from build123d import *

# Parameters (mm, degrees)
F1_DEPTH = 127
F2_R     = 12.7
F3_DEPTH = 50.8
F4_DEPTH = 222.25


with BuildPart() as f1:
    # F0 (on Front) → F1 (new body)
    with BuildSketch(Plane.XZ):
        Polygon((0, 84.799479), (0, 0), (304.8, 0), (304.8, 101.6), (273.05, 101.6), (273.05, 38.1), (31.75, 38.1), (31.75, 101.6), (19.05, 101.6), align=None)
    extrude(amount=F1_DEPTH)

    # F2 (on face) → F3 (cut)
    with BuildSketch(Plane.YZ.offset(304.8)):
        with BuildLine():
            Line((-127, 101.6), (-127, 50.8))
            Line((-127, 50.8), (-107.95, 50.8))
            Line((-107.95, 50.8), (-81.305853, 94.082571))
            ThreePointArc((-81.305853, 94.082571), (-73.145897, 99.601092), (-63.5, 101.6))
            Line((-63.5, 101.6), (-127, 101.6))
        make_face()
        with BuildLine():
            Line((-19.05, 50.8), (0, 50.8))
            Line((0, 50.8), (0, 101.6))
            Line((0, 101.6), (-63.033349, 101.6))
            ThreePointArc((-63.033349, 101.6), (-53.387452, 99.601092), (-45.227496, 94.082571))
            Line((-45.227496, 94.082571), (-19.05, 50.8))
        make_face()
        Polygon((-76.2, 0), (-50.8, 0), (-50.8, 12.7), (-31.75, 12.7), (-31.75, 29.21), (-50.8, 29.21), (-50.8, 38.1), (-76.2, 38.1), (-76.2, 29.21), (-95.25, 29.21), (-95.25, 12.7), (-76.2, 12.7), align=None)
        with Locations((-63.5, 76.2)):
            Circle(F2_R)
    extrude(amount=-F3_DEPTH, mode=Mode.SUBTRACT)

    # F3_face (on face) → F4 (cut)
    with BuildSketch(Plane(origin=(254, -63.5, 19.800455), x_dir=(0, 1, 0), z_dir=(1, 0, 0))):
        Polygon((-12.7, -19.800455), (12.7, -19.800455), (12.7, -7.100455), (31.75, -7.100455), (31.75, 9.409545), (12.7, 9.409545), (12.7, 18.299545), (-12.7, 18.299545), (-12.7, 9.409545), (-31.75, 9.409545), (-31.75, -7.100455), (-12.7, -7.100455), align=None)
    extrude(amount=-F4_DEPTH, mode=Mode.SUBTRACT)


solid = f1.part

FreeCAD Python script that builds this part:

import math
import FreeCAD as App
import Part
import Sketcher

V = App.Vector
Q = App.Units.Quantity

doc = App.newDocument("Part")
body = doc.addObject("PartDesign::Body", "Body")

sketch1 = body.newObject("Sketcher::SketchObject", "Sketch")
sketch1.AttachmentSupport = (doc.getObject("XZ_Plane"), [""])
sketch1.MapMode = "FlatFace"
sketch1.addGeometry([
    Part.LineSegment(V(0, 85, 0), V(0, 0, 0)),
    Part.LineSegment(V(0, 0, 0), V(305, 0, 0)),
    Part.LineSegment(V(305, 0, 0), V(305, 102, 0)),
    Part.LineSegment(V(305, 102, 0), V(273, 102, 0)),
    Part.LineSegment(V(273, 102, 0), V(273, 38, 0)),
    Part.LineSegment(V(273, 38, 0), V(32, 38, 0)),
    Part.LineSegment(V(32, 38, 0), V(32, 102, 0)),
    Part.LineSegment(V(32, 102, 0), V(19, 102, 0)),
    Part.LineSegment(V(19, 102, 0), V(0, 85, 0)),
], False)
sketch1.addConstraint([
    Sketcher.Constraint("Coincident", 0, 2, 1, 1),
    Sketcher.Constraint("Coincident", 1, 2, 2, 1),
    Sketcher.Constraint("Coincident", 2, 2, 3, 1),
    Sketcher.Constraint("Coincident", 3, 2, 4, 1),
    Sketcher.Constraint("Coincident", 4, 2, 5, 1),
    Sketcher.Constraint("Coincident", 5, 2, 6, 1),
    Sketcher.Constraint("Coincident", 6, 2, 7, 1),
    Sketcher.Constraint("Coincident", 7, 2, 8, 1),
    Sketcher.Constraint("Coincident", 8, 2, 0, 1),
    Sketcher.Constraint("Vertical", 0),
    Sketcher.Constraint("Horizontal", 1),
    Sketcher.Constraint("Vertical", 2),
    Sketcher.Constraint("Horizontal", 3),
    Sketcher.Constraint("Vertical", 4),
    Sketcher.Constraint("Horizontal", 5),
    Sketcher.Constraint("Vertical", 6),
    Sketcher.Constraint("Horizontal", 7),
    Sketcher.Constraint("Coincident", 0, 2, -1, 1),
    Sketcher.Constraint("Horizontal", 3, 2, 6, 2),
    Sketcher.Constraint("DistanceX", 1, 1, 1, 2, Q("12 in")),
    Sketcher.Constraint("DistanceY", 2, 1, 2, 2, Q("4 in")),
    Sketcher.Constraint("Distance", 8, Q("1 in")),
    Sketcher.Constraint("DistanceX", 5, 2, 5, 1, Q("9.5 in")),
    Sketcher.Constraint("DistanceX", 7, 2, 7, 1, Q("0.5 in")),
    Sketcher.Constraint("DistanceY", 4, 2, 4, 1, Q("2.5 in")),
    Sketcher.Constraint("DistanceX", 3, 2, 3, 1, Q("1.25 in")),
])
pad1 = body.newObject("PartDesign::Pad", "Pad")
pad1.Profile = sketch1
pad1.Length = Q("5 in")

sketch2 = body.newObject("Sketcher::SketchObject", "Sketch001")
sketch2.AttachmentSupport = (doc.getObject("YZ_Plane"), [""])
sketch2.MapMode = "FlatFace"
sketch2.AttachmentOffset = App.Placement(V(0, 0, 12 * 25.4), App.Rotation())
sketch2.addGeometry([
    Part.LineSegment(V(-127, 102, 0), V(-127, 51, 0)),
    Part.LineSegment(V(-127, 51, 0), V(-108, 51, 0)),
    Part.LineSegment(V(-108, 51, 0), V(-81, 94, 0)),
    Part.ArcOfCircle(Part.Circle(V(-63, 76, 0), V(0, 0, 1), 25), math.radians(91), math.radians(135)),
    Part.LineSegment(V(-64, 102, 0), V(-127, 102, 0)),
    Part.LineSegment(V(-19, 51, 0), V(0, 51, 0)),
    Part.LineSegment(V(0, 51, 0), V(0, 102, 0)),
    Part.LineSegment(V(0, 102, 0), V(-63, 102, 0)),
    Part.ArcOfCircle(Part.Circle(V(-63, 76, 0), V(0, 0, 1), 25), math.radians(45), math.radians(89)),
    Part.LineSegment(V(-45, 94, 0), V(-19, 51, 0)),
    Part.LineSegment(V(-76, 0, 0), V(-51, 0, 0)),
    Part.LineSegment(V(-51, 0, 0), V(-51, 13, 0)),
    Part.LineSegment(V(-51, 13, 0), V(-32, 13, 0)),
    Part.LineSegment(V(-32, 13, 0), V(-32, 29, 0)),
    Part.LineSegment(V(-32, 29, 0), V(-51, 29, 0)),
    Part.LineSegment(V(-51, 29, 0), V(-51, 38, 0)),
    Part.LineSegment(V(-51, 38, 0), V(-76, 38, 0)),
    Part.LineSegment(V(-76, 38, 0), V(-76, 29, 0)),
    Part.LineSegment(V(-76, 29, 0), V(-95, 29, 0)),
    Part.LineSegment(V(-95, 29, 0), V(-95, 13, 0)),
    Part.LineSegment(V(-95, 13, 0), V(-76, 13, 0)),
    Part.LineSegment(V(-76, 13, 0), V(-76, 0, 0)),
    Part.Circle(V(-64, 76, 0), V(0, 0, 1), 13),
], False)
sketch2.addConstraint([
    Sketcher.Constraint("Coincident", 0, 2, 1, 1),
    Sketcher.Constraint("Coincident", 1, 2, 2, 1),
    Sketcher.Constraint("Coincident", 2, 2, 3, 2),
    Sketcher.Constraint("Coincident", 3, 1, 4, 1),
    Sketcher.Constraint("Coincident", 4, 2, 0, 1),
    Sketcher.Constraint("Coincident", 5, 2, 6, 1),
    Sketcher.Constraint("Coincident", 6, 2, 7, 1),
    Sketcher.Constraint("Coincident", 7, 2, 8, 2),
    Sketcher.Constraint("Coincident", 8, 1, 9, 1),
    Sketcher.Constraint("Coincident", 9, 2, 5, 1),
    Sketcher.Constraint("Coincident", 10, 2, 11, 1),
    Sketcher.Constraint("Coincident", 11, 2, 12, 1),
    Sketcher.Constraint("Coincident", 12, 2, 13, 1),
    Sketcher.Constraint("Coincident", 13, 2, 14, 1),
    Sketcher.Constraint("Coincident", 14, 2, 15, 1),
    Sketcher.Constraint("Coincident", 15, 2, 16, 1),
    Sketcher.Constraint("Coincident", 16, 2, 17, 1),
    Sketcher.Constraint("Coincident", 17, 2, 18, 1),
    Sketcher.Constraint("Coincident", 18, 2, 19, 1),
    Sketcher.Constraint("Coincident", 19, 2, 20, 1),
    Sketcher.Constraint("Coincident", 20, 2, 21, 1),
    Sketcher.Constraint("Coincident", 21, 2, 10, 1),
    Sketcher.Constraint("Vertical", 0),
    Sketcher.Constraint("Horizontal", 1),
    Sketcher.Constraint("Horizontal", 4),
    Sketcher.Constraint("Horizontal", 5),
    Sketcher.Constraint("Vertical", 6),
    Sketcher.Constraint("Horizontal", 7),
    Sketcher.Constraint("Horizontal", 10),
    Sketcher.Constraint("Vertical", 11),
    Sketcher.Constraint("Horizontal", 12),
    Sketcher.Constraint("Vertical", 13),
    Sketcher.Constraint("Horizontal", 14),
    Sketcher.Constraint("Vertical", 15),
    Sketcher.Constraint("Horizontal", 16),
    Sketcher.Constraint("Vertical", 17),
    Sketcher.Constraint("Horizontal", 18),
    Sketcher.Constraint("Vertical", 19),
    Sketcher.Constraint("Horizontal", 20),
    Sketcher.Constraint("Vertical", 21),
    Sketcher.Constraint("Coincident", 8, 3, 3, 3),
    Sketcher.Constraint("Equal", 3, 8),
    Sketcher.Constraint("PointOnObject", 5, 2, -2),
    Sketcher.Constraint("PointOnObject", 10, 2, -1),
    Sketcher.Constraint("Horizontal", 1, 2, 5, 2),
    Sketcher.Constraint("Horizontal", 4, 2, 6, 2),
    Sketcher.Constraint("Horizontal", 2, 2, 8, 1),
    Sketcher.Constraint("Horizontal", 14, 2, 17, 2),
    Sketcher.Constraint("Horizontal", 12, 2, 19, 2),
    Sketcher.Constraint("Vertical", 22, 3, 3, 1),
    Sketcher.Constraint("Vertical", 11, 2, 14, 2),
    Sketcher.Constraint("Vertical", 17, 2, 20, 2),
    Sketcher.Constraint("Equal", 1, 5),
    Sketcher.Constraint("Equal", 5, 12),
    Sketcher.Constraint("Equal", 14, 18),
    Sketcher.Constraint("Diameter", 22, Q("1 in")),
    Sketcher.Constraint("Radius", 3, Q("1 in")),
    Sketcher.Constraint("DistanceX", 10, 1, 10, 2, Q("1 in")),
    Sketcher.Constraint("DistanceY", 0, 2, 0, 1, Q("2 in")),
    Sketcher.Constraint("DistanceX", 4, 2, 4, 1, Q("2.5 in")),
    Sketcher.Constraint("DistanceY", 11, 1, 11, 2, Q("0.5 in")),
    Sketcher.Constraint("DistanceY", -1, 1, 22, 3, Q("3 in")),
    Sketcher.Constraint("DistanceX", 0, 2, -1, 1, Q("5 in")),
    Sketcher.Constraint("DistanceY", -1, 1, 0, 2, Q("2 in")),
    Sketcher.Constraint("DistanceX", 10, 2, -1, 1, Q("2 in")),
    Sketcher.Constraint("DistanceY", 11, 2, 15, 2, Q("1 in")),
    Sketcher.Constraint("DistanceX", 1, 1, 1, 2, Q("0.75 in")),
    Sketcher.Constraint("DistanceY", 13, 1, 13, 2, Q("0.65 in")),
    Sketcher.Constraint("DistanceX", 7, 2, 7, 1, Q("63.033349 mm")),
    Sketcher.Constraint("DistanceY", 8, 3, 2, 2, Q("17.881499 mm")),
])
pocket1 = body.newObject("PartDesign::Pocket", "Pocket")
pocket1.Profile = sketch2
pocket1.Length = Q("2 in")

sketch3 = body.newObject("Sketcher::SketchObject", "Sketch002")
sketch3.AttachmentSupport = (doc.getObject("YZ_Plane"), [""])
sketch3.MapMode = "FlatFace"
sketch3.AttachmentOffset = App.Placement(V(0, 0, 10 * 25.4), App.Rotation())
sketch3.addGeometry([
    Part.LineSegment(V(-76, 0, 0), V(-51, 0, 0)),
    Part.LineSegment(V(-51, 0, 0), V(-51, 13, 0)),
    Part.LineSegment(V(-51, 13, 0), V(-32, 13, 0)),
    Part.LineSegment(V(-32, 13, 0), V(-32, 29, 0)),
    Part.LineSegment(V(-32, 29, 0), V(-51, 29, 0)),
    Part.LineSegment(V(-51, 29, 0), V(-51, 38, 0)),
    Part.LineSegment(V(-51, 38, 0), V(-76, 38, 0)),
    Part.LineSegment(V(-76, 38, 0), V(-76, 29, 0)),
    Part.LineSegment(V(-76, 29, 0), V(-95, 29, 0)),
    Part.LineSegment(V(-95, 29, 0), V(-95, 13, 0)),
    Part.LineSegment(V(-95, 13, 0), V(-76, 13, 0)),
    Part.LineSegment(V(-76, 13, 0), V(-76, 0, 0)),
], False)
sketch3.addConstraint([
    Sketcher.Constraint("Coincident", 0, 2, 1, 1),
    Sketcher.Constraint("Coincident", 1, 2, 2, 1),
    Sketcher.Constraint("Coincident", 2, 2, 3, 1),
    Sketcher.Constraint("Coincident", 3, 2, 4, 1),
    Sketcher.Constraint("Coincident", 4, 2, 5, 1),
    Sketcher.Constraint("Coincident", 5, 2, 6, 1),
    Sketcher.Constraint("Coincident", 6, 2, 7, 1),
    Sketcher.Constraint("Coincident", 7, 2, 8, 1),
    Sketcher.Constraint("Coincident", 8, 2, 9, 1),
    Sketcher.Constraint("Coincident", 9, 2, 10, 1),
    Sketcher.Constraint("Coincident", 10, 2, 11, 1),
    Sketcher.Constraint("Coincident", 11, 2, 0, 1),
    Sketcher.Constraint("Horizontal", 0),
    Sketcher.Constraint("Vertical", 1),
    Sketcher.Constraint("Horizontal", 2),
    Sketcher.Constraint("Vertical", 3),
    Sketcher.Constraint("Horizontal", 4),
    Sketcher.Constraint("Vertical", 5),
    Sketcher.Constraint("Horizontal", 6),
    Sketcher.Constraint("Vertical", 7),
    Sketcher.Constraint("Horizontal", 8),
    Sketcher.Constraint("Vertical", 9),
    Sketcher.Constraint("Horizontal", 10),
    Sketcher.Constraint("Vertical", 11),
    Sketcher.Constraint("PointOnObject", 0, 2, -1),
    Sketcher.Constraint("Horizontal", 4, 2, 7, 2),
    Sketcher.Constraint("Horizontal", 2, 2, 9, 2),
    Sketcher.Constraint("Vertical", 1, 2, 4, 2),
    Sketcher.Constraint("Vertical", 7, 2, 10, 2),
    Sketcher.Constraint("Equal", 4, 8),
    Sketcher.Constraint("DistanceX", 0, 1, 0, 2, Q("1 in")),
    Sketcher.Constraint("DistanceY", 1, 1, 1, 2, Q("0.5 in")),
    Sketcher.Constraint("DistanceX", 0, 2, -1, 1, Q("2 in")),
    Sketcher.Constraint("DistanceY", 1, 2, 5, 2, Q("1 in")),
    Sketcher.Constraint("DistanceX", 2, 1, 2, 2, Q("0.75 in")),
    Sketcher.Constraint("DistanceY", 3, 1, 3, 2, Q("0.65 in")),
])
pocket2 = body.newObject("PartDesign::Pocket", "Pocket001")
pocket2.Profile = sketch3
pocket2.Length = Q("8.75 in")

doc.recompute()
